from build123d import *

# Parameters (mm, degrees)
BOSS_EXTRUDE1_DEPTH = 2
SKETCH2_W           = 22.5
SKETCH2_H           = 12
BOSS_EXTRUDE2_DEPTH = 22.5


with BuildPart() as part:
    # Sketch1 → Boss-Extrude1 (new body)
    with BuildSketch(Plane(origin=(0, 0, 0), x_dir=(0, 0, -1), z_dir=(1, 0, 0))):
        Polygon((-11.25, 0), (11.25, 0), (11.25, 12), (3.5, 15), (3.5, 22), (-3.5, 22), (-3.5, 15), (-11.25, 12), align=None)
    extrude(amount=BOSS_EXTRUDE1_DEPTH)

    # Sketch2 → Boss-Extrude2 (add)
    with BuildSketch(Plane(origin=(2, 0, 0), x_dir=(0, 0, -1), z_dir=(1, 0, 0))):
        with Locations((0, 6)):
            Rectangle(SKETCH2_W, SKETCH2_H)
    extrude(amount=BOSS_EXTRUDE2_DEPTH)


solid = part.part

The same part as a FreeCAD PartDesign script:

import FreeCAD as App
import Part
import Sketcher


def add_polygon(sketch, points):
    """Adds a closed chain of lines whose ends are joined by coincident constraints."""
    first, n = sketch.GeometryCount, len(points)
    for a, b in zip(points, points[1:] + points[:1]):
        sketch.addGeometry(Part.LineSegment(App.Vector(*a, 0), App.Vector(*b, 0)), False)
    for i in range(n):
        sketch.addConstraint(Sketcher.Constraint("Coincident", first + i, 2, first + (i + 1) % n, 1))

doc = App.newDocument("Part")
body = doc.addObject("PartDesign::Body", "Body")

# Sketch on YZ plane
sketch1 = body.newObject("Sketcher::SketchObject", "Sketch")
sketch1.AttachmentSupport = (doc.getObject("YZ_Plane"), [""])
sketch1.MapMode = "FlatFace"
add_polygon(sketch1, [(0, 11.25), (0, -11.25), (12, -11.25), (15, -3.5), (22, -3.5), (22, 3.5), (15, 3.5), (12, 11.25)])  # lines 0-7
sketch1.addConstraint(Sketcher.Constraint("Vertical", 0))
sketch1.addConstraint(Sketcher.Constraint("Horizontal", 1))
sketch1.addConstraint(Sketcher.Constraint("Horizontal", 3))
sketch1.addConstraint(Sketcher.Constraint("Vertical", 4))
sketch1.addConstraint(Sketcher.Constraint("Horizontal", 5))
sketch1.addConstraint(Sketcher.Constraint("Horizontal", 7))
sketch1.addConstraint(Sketcher.Constraint("Symmetric", 0, 2, 7, 2, -1, 1))
sketch1.addConstraint(Sketcher.Constraint("Symmetric", 2, 2, 5, 2, -1))
sketch1.addConstraint(Sketcher.Constraint("Vertical", 1, 2, 6, 2))
sketch1.addConstraint(Sketcher.Constraint("Equal", 5, 4))
sketch1.addConstraint(Sketcher.Constraint("DistanceX", 1, 1, 1, 2, 12.0))
sketch1.addConstraint(Sketcher.Constraint("DistanceX", 3, 1, 3, 2, 7.0))
sketch1.addConstraint(Sketcher.Constraint("DistanceY", 0, 2, 0, 1, 22.5))
sketch1.addConstraint(Sketcher.Constraint("DistanceX", -1, 1, 2, 2, 15.0))
pad1 = body.newObject("PartDesign::Pad", "Pad")
pad1.Profile = sketch1
pad1.Length = 2

# Sketch on YZ plane
sketch2 = body.newObject("Sketcher::SketchObject", "Sketch001")
sketch2.AttachmentSupport = (doc.getObject("YZ_Plane"), [""])
sketch2.MapMode = "FlatFace"
sketch2.AttachmentOffset = App.Placement(App.Vector(0, 0, 2), App.Rotation())
add_polygon(sketch2, [(12, 11.25), (0, 11.25), (0, -11.25), (12, -11.25)])  # lines 0-3
sketch2.addConstraint(Sketcher.Constraint("Horizontal", 0))
sketch2.addConstraint(Sketcher.Constraint("Vertical", 1))
sketch2.addConstraint(Sketcher.Constraint("Horizontal", 2))
sketch2.addConstraint(Sketcher.Constraint("Vertical", 3))
sketch2.addConstraint(Sketcher.Constraint("Symmetric", 0, 2, 1, 2, -1, 1))
sketch2.addConstraint(Sketcher.Constraint("DistanceX", 0, 2, 0, 1, 12.0))
sketch2.addConstraint(Sketcher.Constraint("DistanceY", 1, 2, 1, 1, 22.5))
pad2 = body.newObject("PartDesign::Pad", "Pad001")
pad2.Profile = sketch2
pad2.Length = 22.5

doc.recompute()
